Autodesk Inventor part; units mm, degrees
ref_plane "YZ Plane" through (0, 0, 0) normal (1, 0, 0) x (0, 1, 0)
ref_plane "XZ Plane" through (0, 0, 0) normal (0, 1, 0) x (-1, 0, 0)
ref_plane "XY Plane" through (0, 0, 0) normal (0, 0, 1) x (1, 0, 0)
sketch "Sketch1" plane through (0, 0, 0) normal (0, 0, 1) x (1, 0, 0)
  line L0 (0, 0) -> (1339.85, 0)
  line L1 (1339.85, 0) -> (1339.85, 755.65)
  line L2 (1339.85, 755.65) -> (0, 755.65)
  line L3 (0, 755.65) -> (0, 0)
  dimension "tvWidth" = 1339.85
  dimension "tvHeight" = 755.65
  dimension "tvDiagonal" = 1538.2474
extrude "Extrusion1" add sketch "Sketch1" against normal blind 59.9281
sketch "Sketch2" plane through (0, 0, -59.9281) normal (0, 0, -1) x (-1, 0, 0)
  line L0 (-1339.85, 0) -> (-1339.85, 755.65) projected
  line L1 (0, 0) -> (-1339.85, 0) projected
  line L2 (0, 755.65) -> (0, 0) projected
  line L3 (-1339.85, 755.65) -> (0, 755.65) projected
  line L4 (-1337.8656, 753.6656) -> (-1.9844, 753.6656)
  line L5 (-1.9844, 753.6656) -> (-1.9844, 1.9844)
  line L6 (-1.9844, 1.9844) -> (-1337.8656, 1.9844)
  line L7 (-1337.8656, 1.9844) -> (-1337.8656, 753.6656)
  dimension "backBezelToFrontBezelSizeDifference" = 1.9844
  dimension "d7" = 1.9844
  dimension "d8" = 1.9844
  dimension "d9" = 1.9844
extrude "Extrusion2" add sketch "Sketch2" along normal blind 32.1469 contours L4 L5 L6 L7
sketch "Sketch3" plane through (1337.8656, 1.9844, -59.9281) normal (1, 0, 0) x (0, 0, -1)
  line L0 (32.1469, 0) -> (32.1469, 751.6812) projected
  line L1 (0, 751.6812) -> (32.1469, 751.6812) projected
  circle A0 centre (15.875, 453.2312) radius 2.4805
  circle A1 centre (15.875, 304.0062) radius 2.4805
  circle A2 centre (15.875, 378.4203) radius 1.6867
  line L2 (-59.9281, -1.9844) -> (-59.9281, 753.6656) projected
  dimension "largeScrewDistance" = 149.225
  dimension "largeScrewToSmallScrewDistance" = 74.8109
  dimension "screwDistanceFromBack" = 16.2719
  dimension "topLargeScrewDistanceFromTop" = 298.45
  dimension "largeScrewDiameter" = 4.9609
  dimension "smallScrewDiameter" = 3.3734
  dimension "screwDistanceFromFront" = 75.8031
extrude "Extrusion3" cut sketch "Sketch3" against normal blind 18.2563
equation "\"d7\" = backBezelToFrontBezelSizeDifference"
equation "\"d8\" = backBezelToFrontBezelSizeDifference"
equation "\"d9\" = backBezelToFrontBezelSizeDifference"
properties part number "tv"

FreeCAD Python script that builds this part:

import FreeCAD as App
import Part
import Sketcher

V = App.Vector
Q = App.Units.Quantity


def add_polygon(sketch, points):
    """Adds a closed chain of lines whose ends are joined by coincident constraints."""
    first, n = sketch.GeometryCount, len(points)
    for a, b in zip(points, points[1:] + points[:1]):
        sketch.addGeometry(Part.LineSegment(App.Vector(*a, 0), App.Vector(*b, 0)), False)
    for i in range(n):
        sketch.addConstraint(Sketcher.Constraint("Coincident", first + i, 2, first + (i + 1) % n, 1))

doc = App.newDocument("Part")
body = doc.addObject("PartDesign::Body", "Body")

# Sketch on XY plane
sketch1 = body.newObject("Sketcher::SketchObject", "Sketch")
sketch1.AttachmentSupport = (doc.getObject("XY_Plane"), [""])
sketch1.MapMode = "FlatFace"
add_polygon(sketch1, [(0, 755.65), (0, 0), (1339.85, 0), (1339.85, 755.65)])  # lines 0-3
sketch1.addConstraint(Sketcher.Constraint("Vertical", 0))
sketch1.addConstraint(Sketcher.Constraint("Horizontal", 1))
sketch1.addConstraint(Sketcher.Constraint("Vertical", 2))
sketch1.addConstraint(Sketcher.Constraint("Horizontal", 3))
sketch1.addConstraint(Sketcher.Constraint("Coincident", 0, 2, -1, 1))
sketch1.addConstraint(Sketcher.Constraint("DistanceX", 1, 1, 1, 2, Q("52.75 in")))
sketch1.addConstraint(Sketcher.Constraint("DistanceY", 0, 2, 0, 1, Q("29.75 in")))
pad1 = body.newObject("PartDesign::Pad", "Pad")
pad1.Profile = sketch1
pad1.Length = Q("2.359374 in")
pad1.Reversed = True

# Sketch on XY plane
sketch2 = body.newObject("Sketcher::SketchObject", "Sketch001")
sketch2.AttachmentSupport = (doc.getObject("XY_Plane"), [""])
sketch2.MapMode = "FlatFace"
sketch2.AttachmentOffset = App.Placement(V(0, 0, -2.359374 * 25.4), App.Rotation())
add_polygon(sketch2, [(1.9844, 753.6656), (1337.8656, 753.6656), (1337.8656, 1.9844), (1.9844, 1.9844)])  # lines 0-3
sketch2.addConstraint(Sketcher.Constraint("Horizontal", 0))
sketch2.addConstraint(Sketcher.Constraint("Vertical", 1))
sketch2.addConstraint(Sketcher.Constraint("Horizontal", 2))
sketch2.addConstraint(Sketcher.Constraint("Vertical", 3))
sketch2.addConstraint(Sketcher.Constraint("DistanceY", -1, 1, 1, 2, Q("0.078126 in")))
sketch2.addConstraint(Sketcher.Constraint("DistanceX", -1, 1, 2, 2, Q("0.078126 in")))
sketch2.addConstraint(Sketcher.Constraint("DistanceX", 0, 1, 0, 2, Q("52.593748 in")))
sketch2.addConstraint(Sketcher.Constraint("DistanceY", 1, 2, 1, 1, Q("29.593748 in")))
pad2 = body.newObject("PartDesign::Pad", "Pad001")
pad2.Profile = sketch2
pad2.Length = Q("1.265626 in")
pad2.Reversed = True

# Sketch on YZ plane
sketch3 = body.newObject("Sketcher::SketchObject", "Sketch002")
sketch3.AttachmentSupport = (doc.getObject("YZ_Plane"), [""])
sketch3.MapMode = "FlatFace"
sketch3.AttachmentOffset = App.Placement(V(0, 0, 52.671874 * 25.4), App.Rotation())
sketch3.addGeometry(Part.Circle(V(455.2156, -75.8031, 0), V(0, 0, 1), 2.4805), False)
sketch3.addGeometry(Part.Circle(V(305.9906, -75.8031, 0), V(0, 0, 1), 2.4805), False)
sketch3.addGeometry(Part.Circle(V(380.4047, -75.8031, 0), V(0, 0, 1), 1.6867), False)
sketch3.addConstraint(Sketcher.Constraint("Equal", 0, 1))
sketch3.addConstraint(Sketcher.Constraint("Horizontal", 0, 3, 1, 3))
sketch3.addConstraint(Sketcher.Constraint("Horizontal", 1, 3, 2, 3))
sketch3.addConstraint(Sketcher.Constraint("Diameter", 2, Q("0.1328 in")))
sketch3.addConstraint(Sketcher.Constraint("Diameter", 0, 4.961))
sketch3.addConstraint(Sketcher.Constraint("DistanceY", 0, 3, -1, 1, Q("2.9843701 in")))
sketch3.addConstraint(Sketcher.Constraint("DistanceX", 1, 3, 0, 3, Q("5.875 in")))
sketch3.addConstraint(Sketcher.Constraint("DistanceX", 2, 3, 0, 3, Q("2.9453 in")))
sketch3.addConstraint(Sketcher.Constraint("DistanceX", -1, 1, 0, 3, Q("17.921874 in")))
pocket1 = body.newObject("PartDesign::Pocket", "Pocket")
pocket1.Profile = sketch3
pocket1.Length = Q("0.718752 in")

doc.recompute()
